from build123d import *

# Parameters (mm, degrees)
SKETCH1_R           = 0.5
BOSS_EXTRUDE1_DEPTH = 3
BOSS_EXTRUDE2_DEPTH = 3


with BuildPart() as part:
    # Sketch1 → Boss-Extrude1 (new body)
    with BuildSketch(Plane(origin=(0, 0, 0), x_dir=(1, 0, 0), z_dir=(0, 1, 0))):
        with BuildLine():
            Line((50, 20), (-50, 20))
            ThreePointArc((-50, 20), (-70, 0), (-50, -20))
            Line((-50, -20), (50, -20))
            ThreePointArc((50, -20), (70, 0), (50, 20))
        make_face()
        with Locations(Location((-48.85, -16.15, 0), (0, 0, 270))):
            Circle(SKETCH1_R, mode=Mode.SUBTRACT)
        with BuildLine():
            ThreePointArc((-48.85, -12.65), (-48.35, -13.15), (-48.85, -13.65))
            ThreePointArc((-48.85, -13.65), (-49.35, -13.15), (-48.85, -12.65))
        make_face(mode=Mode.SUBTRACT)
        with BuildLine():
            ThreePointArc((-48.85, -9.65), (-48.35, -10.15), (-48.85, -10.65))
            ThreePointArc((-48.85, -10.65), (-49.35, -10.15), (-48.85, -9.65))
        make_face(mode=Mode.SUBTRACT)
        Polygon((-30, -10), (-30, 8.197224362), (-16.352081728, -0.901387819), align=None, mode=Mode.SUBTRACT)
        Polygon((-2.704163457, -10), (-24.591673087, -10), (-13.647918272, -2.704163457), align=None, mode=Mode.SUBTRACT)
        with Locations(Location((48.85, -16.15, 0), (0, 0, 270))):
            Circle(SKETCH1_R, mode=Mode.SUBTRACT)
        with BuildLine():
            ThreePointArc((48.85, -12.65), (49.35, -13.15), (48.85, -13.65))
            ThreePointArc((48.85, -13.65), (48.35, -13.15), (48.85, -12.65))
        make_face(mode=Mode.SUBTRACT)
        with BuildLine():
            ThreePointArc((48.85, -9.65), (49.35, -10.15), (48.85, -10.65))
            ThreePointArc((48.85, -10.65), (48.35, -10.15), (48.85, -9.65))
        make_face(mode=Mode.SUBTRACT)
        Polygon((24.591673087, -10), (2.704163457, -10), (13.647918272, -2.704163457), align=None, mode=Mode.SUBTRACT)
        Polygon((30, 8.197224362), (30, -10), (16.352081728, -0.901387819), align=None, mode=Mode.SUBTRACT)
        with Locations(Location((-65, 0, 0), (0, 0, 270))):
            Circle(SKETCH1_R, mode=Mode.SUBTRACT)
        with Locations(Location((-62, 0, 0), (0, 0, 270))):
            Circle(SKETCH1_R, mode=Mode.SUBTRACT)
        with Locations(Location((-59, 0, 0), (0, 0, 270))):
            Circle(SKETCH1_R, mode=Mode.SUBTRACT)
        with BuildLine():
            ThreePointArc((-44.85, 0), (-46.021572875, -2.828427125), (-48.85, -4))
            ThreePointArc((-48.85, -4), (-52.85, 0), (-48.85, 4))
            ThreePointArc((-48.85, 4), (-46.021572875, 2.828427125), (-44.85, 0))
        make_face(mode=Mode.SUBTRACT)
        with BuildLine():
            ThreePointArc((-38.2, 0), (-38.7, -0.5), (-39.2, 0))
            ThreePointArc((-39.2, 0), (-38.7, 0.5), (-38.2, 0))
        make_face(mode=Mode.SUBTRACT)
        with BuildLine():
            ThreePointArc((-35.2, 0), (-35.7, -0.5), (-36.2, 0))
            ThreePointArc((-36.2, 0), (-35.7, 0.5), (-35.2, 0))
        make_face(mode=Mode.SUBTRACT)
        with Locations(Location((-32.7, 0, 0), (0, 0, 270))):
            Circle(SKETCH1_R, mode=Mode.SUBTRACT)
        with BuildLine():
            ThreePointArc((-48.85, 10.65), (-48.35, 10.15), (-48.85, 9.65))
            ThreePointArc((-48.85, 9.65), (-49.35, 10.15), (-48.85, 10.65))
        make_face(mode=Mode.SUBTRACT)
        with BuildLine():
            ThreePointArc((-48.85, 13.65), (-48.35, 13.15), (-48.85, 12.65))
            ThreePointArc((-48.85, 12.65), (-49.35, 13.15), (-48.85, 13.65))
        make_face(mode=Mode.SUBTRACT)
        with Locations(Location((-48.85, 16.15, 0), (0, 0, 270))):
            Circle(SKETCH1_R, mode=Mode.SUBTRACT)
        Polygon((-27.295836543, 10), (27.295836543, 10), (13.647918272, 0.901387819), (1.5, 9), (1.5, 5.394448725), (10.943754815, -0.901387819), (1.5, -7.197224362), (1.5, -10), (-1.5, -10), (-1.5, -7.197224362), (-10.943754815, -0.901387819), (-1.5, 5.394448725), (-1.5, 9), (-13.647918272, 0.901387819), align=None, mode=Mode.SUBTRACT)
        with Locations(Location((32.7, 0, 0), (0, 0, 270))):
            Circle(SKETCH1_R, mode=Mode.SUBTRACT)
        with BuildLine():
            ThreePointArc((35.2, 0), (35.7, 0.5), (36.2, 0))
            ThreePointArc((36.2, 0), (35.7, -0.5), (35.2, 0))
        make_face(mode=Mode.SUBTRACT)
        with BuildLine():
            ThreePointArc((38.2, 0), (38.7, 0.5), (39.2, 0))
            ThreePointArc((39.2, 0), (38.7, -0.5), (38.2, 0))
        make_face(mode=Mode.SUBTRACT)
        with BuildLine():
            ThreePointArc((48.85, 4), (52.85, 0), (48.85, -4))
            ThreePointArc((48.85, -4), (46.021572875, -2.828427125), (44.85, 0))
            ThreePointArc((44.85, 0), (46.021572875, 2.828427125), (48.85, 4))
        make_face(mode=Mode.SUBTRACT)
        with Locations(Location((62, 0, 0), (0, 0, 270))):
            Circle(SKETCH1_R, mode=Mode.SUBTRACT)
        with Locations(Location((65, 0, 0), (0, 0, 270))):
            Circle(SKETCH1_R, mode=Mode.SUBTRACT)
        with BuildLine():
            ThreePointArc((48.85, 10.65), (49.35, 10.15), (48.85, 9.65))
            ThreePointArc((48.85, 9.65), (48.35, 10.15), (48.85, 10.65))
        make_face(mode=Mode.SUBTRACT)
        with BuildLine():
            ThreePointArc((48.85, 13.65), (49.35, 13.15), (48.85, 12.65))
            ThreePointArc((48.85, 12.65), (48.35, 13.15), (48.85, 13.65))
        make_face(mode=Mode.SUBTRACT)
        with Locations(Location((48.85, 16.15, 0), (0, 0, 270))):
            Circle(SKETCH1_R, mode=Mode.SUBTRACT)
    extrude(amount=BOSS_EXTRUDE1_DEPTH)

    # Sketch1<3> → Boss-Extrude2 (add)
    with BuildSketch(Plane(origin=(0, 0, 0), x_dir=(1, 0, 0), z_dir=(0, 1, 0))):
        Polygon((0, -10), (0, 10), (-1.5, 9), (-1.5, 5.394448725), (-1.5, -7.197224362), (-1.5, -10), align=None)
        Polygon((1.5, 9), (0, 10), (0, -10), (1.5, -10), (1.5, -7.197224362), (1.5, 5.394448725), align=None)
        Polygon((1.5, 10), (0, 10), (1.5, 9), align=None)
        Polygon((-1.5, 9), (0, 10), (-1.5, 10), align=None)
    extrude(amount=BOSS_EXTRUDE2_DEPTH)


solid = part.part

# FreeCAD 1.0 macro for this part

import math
import FreeCAD as App
import Part
import Sketcher

V = App.Vector


def add_polygon(sketch, points):
    """Adds a closed chain of lines whose ends are joined by coincident constraints."""
    first, n = sketch.GeometryCount, len(points)
    for a, b in zip(points, points[1:] + points[:1]):
        sketch.addGeometry(Part.LineSegment(App.Vector(*a, 0), App.Vector(*b, 0)), False)
    for i in range(n):
        sketch.addConstraint(Sketcher.Constraint("Coincident", first + i, 2, first + (i + 1) % n, 1))

doc = App.newDocument("Part")
body = doc.addObject("PartDesign::Body", "Body")

sketch1 = body.newObject("Sketcher::SketchObject", "Sketch")
sketch1.AttachmentSupport = (doc.getObject("XZ_Plane"), [""])
sketch1.MapMode = "FlatFace"
sketch1.addGeometry(Part.LineSegment(V(50, -20, 0), V(-50, -20, 0)), False)
sketch1.addGeometry(Part.ArcOfCircle(Part.Circle(V(-50, 0, 0), V(0, 0, 1), 20), math.radians(90), math.radians(270)), False)
sketch1.addGeometry(Part.LineSegment(V(-50, 20, 0), V(50, 20, 0)), False)
sketch1.addGeometry(Part.ArcOfCircle(Part.Circle(V(50, 0, 0), V(0, 0, 1), 20), math.radians(-90), math.radians(90)), False)
sketch1.addGeometry(Part.Circle(V(-48.85, 16.15, 0), V(0, 0, 1), 0.5), False)
sketch1.addGeometry(Part.Circle(V(-48.85, 13.15, 0), V(0, 0, 1), 0.5), False)
sketch1.addGeometry(Part.Circle(V(-48.85, 10.15, 0), V(0, 0, 1), 0.5), False)
add_polygon(sketch1, [(-13.647918, 2.704163), (-2.704163, 10), (-24.591673, 10)])
add_polygon(sketch1, [(-16.352082, 0.901388), (-30, 10), (-30, -8.197224)])
sketch1.addGeometry(Part.Circle(V(48.85, 16.15, 0), V(0, 0, 1), 0.5), False)
sketch1.addGeometry(Part.Circle(V(48.85, 13.15, 0), V(0, 0, 1), 0.5), False)
sketch1.addGeometry(Part.Circle(V(48.85, 10.15, 0), V(0, 0, 1), 0.5), False)
add_polygon(sketch1, [(13.647918, 2.704163), (24.591673, 10), (2.704163, 10)])
add_polygon(sketch1, [(16.352082, 0.901388), (30, -8.197224), (30, 10)])
sketch1.addGeometry(Part.Circle(V(-65, 0, 0), V(0, 0, 1), 0.5), False)
sketch1.addGeometry(Part.Circle(V(-62, 0, 0), V(0, 0, 1), 0.5), False)
sketch1.addGeometry(Part.Circle(V(-59, 0, 0), V(0, 0, 1), 0.5), False)
sketch1.addGeometry(Part.ArcOfCircle(Part.Circle(V(-48.85, 0, 0), V(0, 0, 1), 4), math.radians(-90), math.radians(0)), False)
sketch1.addGeometry(Part.ArcOfCircle(Part.Circle(V(-48.85, 0, 0), V(0, 0, 1), 4), math.radians(0), math.radians(90)), False)
sketch1.addGeometry(Part.ArcOfCircle(Part.Circle(V(-48.85, 0, 0), V(0, 0, 1), 4), math.radians(90), math.radians(270)), False)
sketch1.addGeometry(Part.Circle(V(-38.7, 0, 0), V(0, 0, 1), 0.5), False)
sketch1.addGeometry(Part.Circle(V(-35.7, 0, 0), V(0, 0, 1), 0.5), False)
sketch1.addGeometry(Part.Circle(V(-32.7, 0, 0), V(0, 0, 1), 0.5), False)
sketch1.addGeometry(Part.Circle(V(-48.85, -10.15, 0), V(0, 0, 1), 0.5), False)
sketch1.addGeometry(Part.Circle(V(-48.85, -13.15, 0), V(0, 0, 1), 0.5), False)
sketch1.addGeometry(Part.Circle(V(-48.85, -16.15, 0), V(0, 0, 1), 0.5), False)
add_polygon(sketch1, [(-13.647918, -0.901388), (-27.295837, -10), (27.295837, -10), (13.647918, -0.901388), (1.5, -9), (1.5, -5.394449), (10.943755, 0.901388), (1.5, 7.197224), (1.5, 10), (-1.5, 10), (-1.5, 7.197224), (-10.943755, 0.901388), (-1.5, -5.394449), (-1.5, -9)])
sketch1.addGeometry(Part.Circle(V(32.7, 0, 0), V(0, 0, 1), 0.5), False)
sketch1.addGeometry(Part.Circle(V(35.7, 0, 0), V(0, 0, 1), 0.5), False)
sketch1.addGeometry(Part.Circle(V(38.7, 0, 0), V(0, 0, 1), 0.5), False)
sketch1.addGeometry(Part.ArcOfCircle(Part.Circle(V(48.85, 0, 0), V(0, 0, 1), 4), math.radians(180), math.radians(270)), False)
sketch1.addGeometry(Part.ArcOfCircle(Part.Circle(V(48.85, 0, 0), V(0, 0, 1), 4), math.radians(-90), math.radians(90)), False)
sketch1.addGeometry(Part.ArcOfCircle(Part.Circle(V(48.85, 0, 0), V(0, 0, 1), 4), math.radians(90), math.radians(180)), False)
sketch1.addGeometry(Part.Circle(V(62, 0, 0), V(0, 0, 1), 0.5), False)
sketch1.addGeometry(Part.Circle(V(65, 0, 0), V(0, 0, 1), 0.5), False)
sketch1.addGeometry(Part.Circle(V(48.85, -10.15, 0), V(0, 0, 1), 0.5), False)
sketch1.addGeometry(Part.Circle(V(48.85, -13.15, 0), V(0, 0, 1), 0.5), False)
sketch1.addGeometry(Part.Circle(V(48.85, -16.15, 0), V(0, 0, 1), 0.5), False)
sketch1.addConstraint(Sketcher.Constraint("Tangent", 0, 2, 1, 2))
sketch1.addConstraint(Sketcher.Constraint("Tangent", 1, 1, 2, 1))
sketch1.addConstraint(Sketcher.Constraint("Tangent", 2, 2, 3, 2))
sketch1.addConstraint(Sketcher.Constraint("Tangent", 3, 1, 0, 1))
sketch1.addConstraint(Sketcher.Constraint("Tangent", 25, 2, 26, 1))
sketch1.addConstraint(Sketcher.Constraint("Tangent", 26, 2, 27, 1))
sketch1.addConstraint(Sketcher.Constraint("Tangent", 27, 2, 25, 1))
sketch1.addConstraint(Sketcher.Constraint("Tangent", 51, 2, 52, 1))
sketch1.addConstraint(Sketcher.Constraint("Tangent", 52, 2, 53, 1))
sketch1.addConstraint(Sketcher.Constraint("Tangent", 53, 2, 51, 1))
sketch1.addConstraint(Sketcher.Constraint("Horizontal", 0))
sketch1.addConstraint(Sketcher.Constraint("Horizontal", 2))
sketch1.addConstraint(Sketcher.Constraint("Horizontal", 8))
sketch1.addConstraint(Sketcher.Constraint("Vertical", 11))
sketch1.addConstraint(Sketcher.Constraint("Horizontal", 17))
sketch1.addConstraint(Sketcher.Constraint("Vertical", 20))
sketch1.addConstraint(Sketcher.Constraint("Horizontal", 35))
sketch1.addConstraint(Sketcher.Constraint("Vertical", 38))
sketch1.addConstraint(Sketcher.Constraint("Vertical", 41))
sketch1.addConstraint(Sketcher.Constraint("Horizontal", 42))
sketch1.addConstraint(Sketcher.Constraint("Vertical", 43))
sketch1.addConstraint(Sketcher.Constraint("Vertical", 46))
sketch1.addConstraint(Sketcher.Constraint("Equal", 4, 5))
sketch1.addConstraint(Sketcher.Constraint("Equal", 5, 6))
sketch1.addConstraint(Sketcher.Constraint("Equal", 6, 13))
sketch1.addConstraint(Sketcher.Constraint("Equal", 13, 14))
sketch1.addConstraint(Sketcher.Constraint("Equal", 14, 15))
sketch1.addConstraint(Sketcher.Constraint("Equal", 15, 22))
sketch1.addConstraint(Sketcher.Constraint("Equal", 22, 23))
sketch1.addConstraint(Sketcher.Constraint("Equal", 23, 24))
sketch1.addConstraint(Sketcher.Constraint("Equal", 24, 28))
sketch1.addConstraint(Sketcher.Constraint("Equal", 28, 29))
sketch1.addConstraint(Sketcher.Constraint("Equal", 29, 30))
sketch1.addConstraint(Sketcher.Constraint("Equal", 30, 31))
sketch1.addConstraint(Sketcher.Constraint("Equal", 31, 32))
sketch1.addConstraint(Sketcher.Constraint("Equal", 32, 33))
sketch1.addConstraint(Sketcher.Constraint("Equal", 33, 48))
sketch1.addConstraint(Sketcher.Constraint("Equal", 48, 49))
sketch1.addConstraint(Sketcher.Constraint("Equal", 49, 50))
sketch1.addConstraint(Sketcher.Constraint("Equal", 27, 51))
sketch1.addConstraint(Sketcher.Constraint("Equal", 50, 54))
sketch1.addConstraint(Sketcher.Constraint("Equal", 54, 55))
sketch1.addConstraint(Sketcher.Constraint("Equal", 55, 56))
sketch1.addConstraint(Sketcher.Constraint("Equal", 56, 57))
sketch1.addConstraint(Sketcher.Constraint("Equal", 57, 58))
sketch1.addConstraint(Sketcher.Constraint("Symmetric", 1, 3, 3, 3, -1, 1))
sketch1.addConstraint(Sketcher.Constraint("Symmetric", 15, 3, 31, 3, -1, 1))
sketch1.addConstraint(Sketcher.Constraint("Symmetric", 14, 3, 32, 3, -1, 1))
sketch1.addConstraint(Sketcher.Constraint("Symmetric", 13, 3, 33, 3, -1, 1))
sketch1.addConstraint(Sketcher.Constraint("Symmetric", 30, 3, 48, 3, -1, 1))
sketch1.addConstraint(Sketcher.Constraint("Symmetric", 29, 3, 49, 3, -1, 1))
sketch1.addConstraint(Sketcher.Constraint("Symmetric", 28, 3, 50, 3, -1, 1))
sketch1.addConstraint(Sketcher.Constraint("Symmetric", 25, 3, 51, 3, -1, 1))
sketch1.addConstraint(Sketcher.Constraint("Symmetric", 23, 3, 54, 3, -1, 1))
sketch1.addConstraint(Sketcher.Constraint("Symmetric", 22, 3, 55, 3, -1, 1))
sketch1.addConstraint(Sketcher.Constraint("Symmetric", 6, 3, 56, 3, -1, 1))
sketch1.addConstraint(Sketcher.Constraint("Symmetric", 5, 3, 57, 3, -1, 1))
sketch1.addConstraint(Sketcher.Constraint("Symmetric", 4, 3, 58, 3, -1, 1))
sketch1.addConstraint(Sketcher.Constraint("Symmetric", 4, 3, 13, 3, -2))
sketch1.addConstraint(Sketcher.Constraint("Symmetric", 5, 3, 14, 3, -2))
sketch1.addConstraint(Sketcher.Constraint("Symmetric", 6, 3, 15, 3, -2))
sketch1.addConstraint(Sketcher.Constraint("Symmetric", 8, 2, 16, 2, -2))
sketch1.addConstraint(Sketcher.Constraint("Symmetric", 9, 2, 18, 2, -2))
sketch1.addConstraint(Sketcher.Constraint("Symmetric", 11, 2, 19, 2, -2))
sketch1.addConstraint(Sketcher.Constraint("Symmetric", 12, 2, 21, 2, -2))
sketch1.addConstraint(Sketcher.Constraint("Symmetric", 40, 2, 43, 2, -2))
sketch1.addConstraint(Sketcher.Constraint("Symmetric", 39, 2, 44, 2, -2))
sketch1.addConstraint(Sketcher.Constraint("Symmetric", 38, 2, 45, 2, -2))
sketch1.addConstraint(Sketcher.Constraint("Symmetric", 36, 2, 47, 2, -2))
sketch1.addConstraint(Sketcher.Constraint("Symmetric", 27, 2, 51, 2, -2))
sketch1.addConstraint(Sketcher.Constraint("PointOnObject", 22, 3, -1))
sketch1.addConstraint(Sketcher.Constraint("PointOnObject", 23, 3, -1))
sketch1.addConstraint(Sketcher.Constraint("PointOnObject", 24, 3, -1))
sketch1.addConstraint(Sketcher.Constraint("PointOnObject", 28, 3, -1))
sketch1.addConstraint(Sketcher.Constraint("PointOnObject", 29, 3, -1))
sketch1.addConstraint(Sketcher.Constraint("PointOnObject", 30, 3, -1))
sketch1.addConstraint(Sketcher.Constraint("PointOnObject", 25, 2, -1))
sketch1.addConstraint(Sketcher.Constraint("PointOnObject", 53, 2, -1))
sketch1.addConstraint(Sketcher.Constraint("Parallel", 9, 10))
sketch1.addConstraint(Sketcher.Constraint("Parallel", 7, 12))
sketch1.addConstraint(Sketcher.Constraint("Parallel", 12, 16))
sketch1.addConstraint(Sketcher.Constraint("Parallel", 10, 18))
sketch1.addConstraint(Sketcher.Constraint("Parallel", 16, 21))
sketch1.addConstraint(Sketcher.Constraint("Parallel", 21, 34))
sketch1.addConstraint(Sketcher.Constraint("Parallel", 19, 36))
sketch1.addConstraint(Sketcher.Constraint("Parallel", 34, 37))
sketch1.addConstraint(Sketcher.Constraint("Parallel", 37, 39))
sketch1.addConstraint(Sketcher.Constraint("Parallel", 36, 40))
sketch1.addConstraint(Sketcher.Constraint("Parallel", 45, 47))
sketch1.addConstraint(Sketcher.Constraint("Horizontal", 8, 2, 10, 2))
sketch1.addConstraint(Sketcher.Constraint("Horizontal", 21, 2, 39, 2))
sketch1.addConstraint(Sketcher.Constraint("Horizontal", 20, 2, 41, 2))
sketch1.addConstraint(Sketcher.Constraint("Vertical", 4, 3, 5, 3))
sketch1.addConstraint(Sketcher.Constraint("Vertical", 5, 3, 6, 3))
sketch1.addConstraint(Sketcher.Constraint("Vertical", 6, 3, 25, 3))
sketch1.addConstraint(Sketcher.Constraint("Vertical", 33, 3, 26, 2))
sketch1.addConstraint(Sketcher.Constraint("Vertical", 26, 2, 27, 2))
sketch1.addConstraint(Sketcher.Constraint("Vertical", 18, 2, 36, 2))
sketch1.addConstraint(Sketcher.Constraint("Vertical", 38, 2, 40, 2))
sketch1.addConstraint(Sketcher.Constraint("Vertical", 51, 2, 52, 2))
sketch1.addConstraint(Sketcher.Constraint("Equal", 21, 34))
sketch1.addConstraint(Sketcher.Constraint("Diameter", 4, 1.0))
sketch1.addConstraint(Sketcher.Constraint("Radius", 1, 20.0))
sketch1.addConstraint(Sketcher.Constraint("Radius", 25, 4.0))
sketch1.addConstraint(Sketcher.Constraint("DistanceX", 0, 2, 0, 1, 100.0))
sketch1.addConstraint(Sketcher.Constraint("DistanceX", 42, 2, 42, 1, 3.0))
sketch1.addConstraint(Sketcher.Constraint("DistanceX", 22, 3, -1, 1, 65.0))
sketch1.addConstraint(Sketcher.Constraint("DistanceX", 23, 3, -1, 1, 62.0))
sketch1.addConstraint(Sketcher.Constraint("DistanceX", 24, 3, -1, 1, 59.0))
sketch1.addConstraint(Sketcher.Constraint("DistanceY", -1, 1, 7, 2, 10.0))
sketch1.addConstraint(Sketcher.Constraint("DistanceX", 10, 2, -1, 1, 30.0))
sketch1.addConstraint(Sketcher.Constraint("DistanceY", 34, 2, -1, 1, 10.0))
sketch1.addConstraint(Sketcher.Constraint("DistanceY", 37, 2, -1, 1, 9.0))
sketch1.addConstraint(Sketcher.Constraint("DistanceX", 28, 3, -1, 1, 38.7))
sketch1.addConstraint(Sketcher.Constraint("DistanceX", 29, 3, -1, 1, 35.7))
sketch1.addConstraint(Sketcher.Constraint("DistanceX", 30, 3, -1, 1, 32.7))
sketch1.addConstraint(Sketcher.Constraint("DistanceX", 4, 3, -1, 1, 48.85))
sketch1.addConstraint(Sketcher.Constraint("DistanceY", -1, 1, 4, 3, 16.15))
sketch1.addConstraint(Sketcher.Constraint("DistanceY", -1, 1, 5, 3, 13.15))
sketch1.addConstraint(Sketcher.Constraint("DistanceY", -1, 1, 6, 3, 10.15))
sketch1.addConstraint(Sketcher.Constraint("DistanceX", 8, 2, 8, 1, 21.88751))
sketch1.addConstraint(Sketcher.Constraint("DistanceY", 38, 1, 38, 2, 3.605551))
sketch1.addConstraint(Sketcher.Constraint("Distance", 37, 14.599981))
sketch1.addConstraint(Sketcher.Constraint("Distance", 39, 11.349981))
pad1 = body.newObject("PartDesign::Pad", "Pad")
pad1.Profile = sketch1
pad1.Length = 3
pad1.Reversed = True

sketch2 = body.newObject("Sketcher::SketchObject", "Sketch001")
sketch2.AttachmentSupport = (doc.getObject("XZ_Plane"), [""])
sketch2.MapMode = "FlatFace"
add_polygon(sketch2, [(-1.5, 10), (1.5, 10), (1.5, -10), (-1.5, -10)])
sketch2.addConstraint(Sketcher.Constraint("Horizontal", 0))
sketch2.addConstraint(Sketcher.Constraint("Vertical", 1))
sketch2.addConstraint(Sketcher.Constraint("Horizontal", 2))
sketch2.addConstraint(Sketcher.Constraint("Vertical", 3))
sketch2.addConstraint(Sketcher.Constraint("Symmetric", 0, 2, 2, 2, -1, 1))
sketch2.addConstraint(Sketcher.Constraint("DistanceX", 0, 1, 0, 2, 3.0))
sketch2.addConstraint(Sketcher.Constraint("DistanceY", 1, 2, 1, 1, 20.0))
pad2 = body.newObject("PartDesign::Pad", "Pad001")
pad2.Profile = sketch2
pad2.Length = 3
pad2.Reversed = True

doc.recompute()
